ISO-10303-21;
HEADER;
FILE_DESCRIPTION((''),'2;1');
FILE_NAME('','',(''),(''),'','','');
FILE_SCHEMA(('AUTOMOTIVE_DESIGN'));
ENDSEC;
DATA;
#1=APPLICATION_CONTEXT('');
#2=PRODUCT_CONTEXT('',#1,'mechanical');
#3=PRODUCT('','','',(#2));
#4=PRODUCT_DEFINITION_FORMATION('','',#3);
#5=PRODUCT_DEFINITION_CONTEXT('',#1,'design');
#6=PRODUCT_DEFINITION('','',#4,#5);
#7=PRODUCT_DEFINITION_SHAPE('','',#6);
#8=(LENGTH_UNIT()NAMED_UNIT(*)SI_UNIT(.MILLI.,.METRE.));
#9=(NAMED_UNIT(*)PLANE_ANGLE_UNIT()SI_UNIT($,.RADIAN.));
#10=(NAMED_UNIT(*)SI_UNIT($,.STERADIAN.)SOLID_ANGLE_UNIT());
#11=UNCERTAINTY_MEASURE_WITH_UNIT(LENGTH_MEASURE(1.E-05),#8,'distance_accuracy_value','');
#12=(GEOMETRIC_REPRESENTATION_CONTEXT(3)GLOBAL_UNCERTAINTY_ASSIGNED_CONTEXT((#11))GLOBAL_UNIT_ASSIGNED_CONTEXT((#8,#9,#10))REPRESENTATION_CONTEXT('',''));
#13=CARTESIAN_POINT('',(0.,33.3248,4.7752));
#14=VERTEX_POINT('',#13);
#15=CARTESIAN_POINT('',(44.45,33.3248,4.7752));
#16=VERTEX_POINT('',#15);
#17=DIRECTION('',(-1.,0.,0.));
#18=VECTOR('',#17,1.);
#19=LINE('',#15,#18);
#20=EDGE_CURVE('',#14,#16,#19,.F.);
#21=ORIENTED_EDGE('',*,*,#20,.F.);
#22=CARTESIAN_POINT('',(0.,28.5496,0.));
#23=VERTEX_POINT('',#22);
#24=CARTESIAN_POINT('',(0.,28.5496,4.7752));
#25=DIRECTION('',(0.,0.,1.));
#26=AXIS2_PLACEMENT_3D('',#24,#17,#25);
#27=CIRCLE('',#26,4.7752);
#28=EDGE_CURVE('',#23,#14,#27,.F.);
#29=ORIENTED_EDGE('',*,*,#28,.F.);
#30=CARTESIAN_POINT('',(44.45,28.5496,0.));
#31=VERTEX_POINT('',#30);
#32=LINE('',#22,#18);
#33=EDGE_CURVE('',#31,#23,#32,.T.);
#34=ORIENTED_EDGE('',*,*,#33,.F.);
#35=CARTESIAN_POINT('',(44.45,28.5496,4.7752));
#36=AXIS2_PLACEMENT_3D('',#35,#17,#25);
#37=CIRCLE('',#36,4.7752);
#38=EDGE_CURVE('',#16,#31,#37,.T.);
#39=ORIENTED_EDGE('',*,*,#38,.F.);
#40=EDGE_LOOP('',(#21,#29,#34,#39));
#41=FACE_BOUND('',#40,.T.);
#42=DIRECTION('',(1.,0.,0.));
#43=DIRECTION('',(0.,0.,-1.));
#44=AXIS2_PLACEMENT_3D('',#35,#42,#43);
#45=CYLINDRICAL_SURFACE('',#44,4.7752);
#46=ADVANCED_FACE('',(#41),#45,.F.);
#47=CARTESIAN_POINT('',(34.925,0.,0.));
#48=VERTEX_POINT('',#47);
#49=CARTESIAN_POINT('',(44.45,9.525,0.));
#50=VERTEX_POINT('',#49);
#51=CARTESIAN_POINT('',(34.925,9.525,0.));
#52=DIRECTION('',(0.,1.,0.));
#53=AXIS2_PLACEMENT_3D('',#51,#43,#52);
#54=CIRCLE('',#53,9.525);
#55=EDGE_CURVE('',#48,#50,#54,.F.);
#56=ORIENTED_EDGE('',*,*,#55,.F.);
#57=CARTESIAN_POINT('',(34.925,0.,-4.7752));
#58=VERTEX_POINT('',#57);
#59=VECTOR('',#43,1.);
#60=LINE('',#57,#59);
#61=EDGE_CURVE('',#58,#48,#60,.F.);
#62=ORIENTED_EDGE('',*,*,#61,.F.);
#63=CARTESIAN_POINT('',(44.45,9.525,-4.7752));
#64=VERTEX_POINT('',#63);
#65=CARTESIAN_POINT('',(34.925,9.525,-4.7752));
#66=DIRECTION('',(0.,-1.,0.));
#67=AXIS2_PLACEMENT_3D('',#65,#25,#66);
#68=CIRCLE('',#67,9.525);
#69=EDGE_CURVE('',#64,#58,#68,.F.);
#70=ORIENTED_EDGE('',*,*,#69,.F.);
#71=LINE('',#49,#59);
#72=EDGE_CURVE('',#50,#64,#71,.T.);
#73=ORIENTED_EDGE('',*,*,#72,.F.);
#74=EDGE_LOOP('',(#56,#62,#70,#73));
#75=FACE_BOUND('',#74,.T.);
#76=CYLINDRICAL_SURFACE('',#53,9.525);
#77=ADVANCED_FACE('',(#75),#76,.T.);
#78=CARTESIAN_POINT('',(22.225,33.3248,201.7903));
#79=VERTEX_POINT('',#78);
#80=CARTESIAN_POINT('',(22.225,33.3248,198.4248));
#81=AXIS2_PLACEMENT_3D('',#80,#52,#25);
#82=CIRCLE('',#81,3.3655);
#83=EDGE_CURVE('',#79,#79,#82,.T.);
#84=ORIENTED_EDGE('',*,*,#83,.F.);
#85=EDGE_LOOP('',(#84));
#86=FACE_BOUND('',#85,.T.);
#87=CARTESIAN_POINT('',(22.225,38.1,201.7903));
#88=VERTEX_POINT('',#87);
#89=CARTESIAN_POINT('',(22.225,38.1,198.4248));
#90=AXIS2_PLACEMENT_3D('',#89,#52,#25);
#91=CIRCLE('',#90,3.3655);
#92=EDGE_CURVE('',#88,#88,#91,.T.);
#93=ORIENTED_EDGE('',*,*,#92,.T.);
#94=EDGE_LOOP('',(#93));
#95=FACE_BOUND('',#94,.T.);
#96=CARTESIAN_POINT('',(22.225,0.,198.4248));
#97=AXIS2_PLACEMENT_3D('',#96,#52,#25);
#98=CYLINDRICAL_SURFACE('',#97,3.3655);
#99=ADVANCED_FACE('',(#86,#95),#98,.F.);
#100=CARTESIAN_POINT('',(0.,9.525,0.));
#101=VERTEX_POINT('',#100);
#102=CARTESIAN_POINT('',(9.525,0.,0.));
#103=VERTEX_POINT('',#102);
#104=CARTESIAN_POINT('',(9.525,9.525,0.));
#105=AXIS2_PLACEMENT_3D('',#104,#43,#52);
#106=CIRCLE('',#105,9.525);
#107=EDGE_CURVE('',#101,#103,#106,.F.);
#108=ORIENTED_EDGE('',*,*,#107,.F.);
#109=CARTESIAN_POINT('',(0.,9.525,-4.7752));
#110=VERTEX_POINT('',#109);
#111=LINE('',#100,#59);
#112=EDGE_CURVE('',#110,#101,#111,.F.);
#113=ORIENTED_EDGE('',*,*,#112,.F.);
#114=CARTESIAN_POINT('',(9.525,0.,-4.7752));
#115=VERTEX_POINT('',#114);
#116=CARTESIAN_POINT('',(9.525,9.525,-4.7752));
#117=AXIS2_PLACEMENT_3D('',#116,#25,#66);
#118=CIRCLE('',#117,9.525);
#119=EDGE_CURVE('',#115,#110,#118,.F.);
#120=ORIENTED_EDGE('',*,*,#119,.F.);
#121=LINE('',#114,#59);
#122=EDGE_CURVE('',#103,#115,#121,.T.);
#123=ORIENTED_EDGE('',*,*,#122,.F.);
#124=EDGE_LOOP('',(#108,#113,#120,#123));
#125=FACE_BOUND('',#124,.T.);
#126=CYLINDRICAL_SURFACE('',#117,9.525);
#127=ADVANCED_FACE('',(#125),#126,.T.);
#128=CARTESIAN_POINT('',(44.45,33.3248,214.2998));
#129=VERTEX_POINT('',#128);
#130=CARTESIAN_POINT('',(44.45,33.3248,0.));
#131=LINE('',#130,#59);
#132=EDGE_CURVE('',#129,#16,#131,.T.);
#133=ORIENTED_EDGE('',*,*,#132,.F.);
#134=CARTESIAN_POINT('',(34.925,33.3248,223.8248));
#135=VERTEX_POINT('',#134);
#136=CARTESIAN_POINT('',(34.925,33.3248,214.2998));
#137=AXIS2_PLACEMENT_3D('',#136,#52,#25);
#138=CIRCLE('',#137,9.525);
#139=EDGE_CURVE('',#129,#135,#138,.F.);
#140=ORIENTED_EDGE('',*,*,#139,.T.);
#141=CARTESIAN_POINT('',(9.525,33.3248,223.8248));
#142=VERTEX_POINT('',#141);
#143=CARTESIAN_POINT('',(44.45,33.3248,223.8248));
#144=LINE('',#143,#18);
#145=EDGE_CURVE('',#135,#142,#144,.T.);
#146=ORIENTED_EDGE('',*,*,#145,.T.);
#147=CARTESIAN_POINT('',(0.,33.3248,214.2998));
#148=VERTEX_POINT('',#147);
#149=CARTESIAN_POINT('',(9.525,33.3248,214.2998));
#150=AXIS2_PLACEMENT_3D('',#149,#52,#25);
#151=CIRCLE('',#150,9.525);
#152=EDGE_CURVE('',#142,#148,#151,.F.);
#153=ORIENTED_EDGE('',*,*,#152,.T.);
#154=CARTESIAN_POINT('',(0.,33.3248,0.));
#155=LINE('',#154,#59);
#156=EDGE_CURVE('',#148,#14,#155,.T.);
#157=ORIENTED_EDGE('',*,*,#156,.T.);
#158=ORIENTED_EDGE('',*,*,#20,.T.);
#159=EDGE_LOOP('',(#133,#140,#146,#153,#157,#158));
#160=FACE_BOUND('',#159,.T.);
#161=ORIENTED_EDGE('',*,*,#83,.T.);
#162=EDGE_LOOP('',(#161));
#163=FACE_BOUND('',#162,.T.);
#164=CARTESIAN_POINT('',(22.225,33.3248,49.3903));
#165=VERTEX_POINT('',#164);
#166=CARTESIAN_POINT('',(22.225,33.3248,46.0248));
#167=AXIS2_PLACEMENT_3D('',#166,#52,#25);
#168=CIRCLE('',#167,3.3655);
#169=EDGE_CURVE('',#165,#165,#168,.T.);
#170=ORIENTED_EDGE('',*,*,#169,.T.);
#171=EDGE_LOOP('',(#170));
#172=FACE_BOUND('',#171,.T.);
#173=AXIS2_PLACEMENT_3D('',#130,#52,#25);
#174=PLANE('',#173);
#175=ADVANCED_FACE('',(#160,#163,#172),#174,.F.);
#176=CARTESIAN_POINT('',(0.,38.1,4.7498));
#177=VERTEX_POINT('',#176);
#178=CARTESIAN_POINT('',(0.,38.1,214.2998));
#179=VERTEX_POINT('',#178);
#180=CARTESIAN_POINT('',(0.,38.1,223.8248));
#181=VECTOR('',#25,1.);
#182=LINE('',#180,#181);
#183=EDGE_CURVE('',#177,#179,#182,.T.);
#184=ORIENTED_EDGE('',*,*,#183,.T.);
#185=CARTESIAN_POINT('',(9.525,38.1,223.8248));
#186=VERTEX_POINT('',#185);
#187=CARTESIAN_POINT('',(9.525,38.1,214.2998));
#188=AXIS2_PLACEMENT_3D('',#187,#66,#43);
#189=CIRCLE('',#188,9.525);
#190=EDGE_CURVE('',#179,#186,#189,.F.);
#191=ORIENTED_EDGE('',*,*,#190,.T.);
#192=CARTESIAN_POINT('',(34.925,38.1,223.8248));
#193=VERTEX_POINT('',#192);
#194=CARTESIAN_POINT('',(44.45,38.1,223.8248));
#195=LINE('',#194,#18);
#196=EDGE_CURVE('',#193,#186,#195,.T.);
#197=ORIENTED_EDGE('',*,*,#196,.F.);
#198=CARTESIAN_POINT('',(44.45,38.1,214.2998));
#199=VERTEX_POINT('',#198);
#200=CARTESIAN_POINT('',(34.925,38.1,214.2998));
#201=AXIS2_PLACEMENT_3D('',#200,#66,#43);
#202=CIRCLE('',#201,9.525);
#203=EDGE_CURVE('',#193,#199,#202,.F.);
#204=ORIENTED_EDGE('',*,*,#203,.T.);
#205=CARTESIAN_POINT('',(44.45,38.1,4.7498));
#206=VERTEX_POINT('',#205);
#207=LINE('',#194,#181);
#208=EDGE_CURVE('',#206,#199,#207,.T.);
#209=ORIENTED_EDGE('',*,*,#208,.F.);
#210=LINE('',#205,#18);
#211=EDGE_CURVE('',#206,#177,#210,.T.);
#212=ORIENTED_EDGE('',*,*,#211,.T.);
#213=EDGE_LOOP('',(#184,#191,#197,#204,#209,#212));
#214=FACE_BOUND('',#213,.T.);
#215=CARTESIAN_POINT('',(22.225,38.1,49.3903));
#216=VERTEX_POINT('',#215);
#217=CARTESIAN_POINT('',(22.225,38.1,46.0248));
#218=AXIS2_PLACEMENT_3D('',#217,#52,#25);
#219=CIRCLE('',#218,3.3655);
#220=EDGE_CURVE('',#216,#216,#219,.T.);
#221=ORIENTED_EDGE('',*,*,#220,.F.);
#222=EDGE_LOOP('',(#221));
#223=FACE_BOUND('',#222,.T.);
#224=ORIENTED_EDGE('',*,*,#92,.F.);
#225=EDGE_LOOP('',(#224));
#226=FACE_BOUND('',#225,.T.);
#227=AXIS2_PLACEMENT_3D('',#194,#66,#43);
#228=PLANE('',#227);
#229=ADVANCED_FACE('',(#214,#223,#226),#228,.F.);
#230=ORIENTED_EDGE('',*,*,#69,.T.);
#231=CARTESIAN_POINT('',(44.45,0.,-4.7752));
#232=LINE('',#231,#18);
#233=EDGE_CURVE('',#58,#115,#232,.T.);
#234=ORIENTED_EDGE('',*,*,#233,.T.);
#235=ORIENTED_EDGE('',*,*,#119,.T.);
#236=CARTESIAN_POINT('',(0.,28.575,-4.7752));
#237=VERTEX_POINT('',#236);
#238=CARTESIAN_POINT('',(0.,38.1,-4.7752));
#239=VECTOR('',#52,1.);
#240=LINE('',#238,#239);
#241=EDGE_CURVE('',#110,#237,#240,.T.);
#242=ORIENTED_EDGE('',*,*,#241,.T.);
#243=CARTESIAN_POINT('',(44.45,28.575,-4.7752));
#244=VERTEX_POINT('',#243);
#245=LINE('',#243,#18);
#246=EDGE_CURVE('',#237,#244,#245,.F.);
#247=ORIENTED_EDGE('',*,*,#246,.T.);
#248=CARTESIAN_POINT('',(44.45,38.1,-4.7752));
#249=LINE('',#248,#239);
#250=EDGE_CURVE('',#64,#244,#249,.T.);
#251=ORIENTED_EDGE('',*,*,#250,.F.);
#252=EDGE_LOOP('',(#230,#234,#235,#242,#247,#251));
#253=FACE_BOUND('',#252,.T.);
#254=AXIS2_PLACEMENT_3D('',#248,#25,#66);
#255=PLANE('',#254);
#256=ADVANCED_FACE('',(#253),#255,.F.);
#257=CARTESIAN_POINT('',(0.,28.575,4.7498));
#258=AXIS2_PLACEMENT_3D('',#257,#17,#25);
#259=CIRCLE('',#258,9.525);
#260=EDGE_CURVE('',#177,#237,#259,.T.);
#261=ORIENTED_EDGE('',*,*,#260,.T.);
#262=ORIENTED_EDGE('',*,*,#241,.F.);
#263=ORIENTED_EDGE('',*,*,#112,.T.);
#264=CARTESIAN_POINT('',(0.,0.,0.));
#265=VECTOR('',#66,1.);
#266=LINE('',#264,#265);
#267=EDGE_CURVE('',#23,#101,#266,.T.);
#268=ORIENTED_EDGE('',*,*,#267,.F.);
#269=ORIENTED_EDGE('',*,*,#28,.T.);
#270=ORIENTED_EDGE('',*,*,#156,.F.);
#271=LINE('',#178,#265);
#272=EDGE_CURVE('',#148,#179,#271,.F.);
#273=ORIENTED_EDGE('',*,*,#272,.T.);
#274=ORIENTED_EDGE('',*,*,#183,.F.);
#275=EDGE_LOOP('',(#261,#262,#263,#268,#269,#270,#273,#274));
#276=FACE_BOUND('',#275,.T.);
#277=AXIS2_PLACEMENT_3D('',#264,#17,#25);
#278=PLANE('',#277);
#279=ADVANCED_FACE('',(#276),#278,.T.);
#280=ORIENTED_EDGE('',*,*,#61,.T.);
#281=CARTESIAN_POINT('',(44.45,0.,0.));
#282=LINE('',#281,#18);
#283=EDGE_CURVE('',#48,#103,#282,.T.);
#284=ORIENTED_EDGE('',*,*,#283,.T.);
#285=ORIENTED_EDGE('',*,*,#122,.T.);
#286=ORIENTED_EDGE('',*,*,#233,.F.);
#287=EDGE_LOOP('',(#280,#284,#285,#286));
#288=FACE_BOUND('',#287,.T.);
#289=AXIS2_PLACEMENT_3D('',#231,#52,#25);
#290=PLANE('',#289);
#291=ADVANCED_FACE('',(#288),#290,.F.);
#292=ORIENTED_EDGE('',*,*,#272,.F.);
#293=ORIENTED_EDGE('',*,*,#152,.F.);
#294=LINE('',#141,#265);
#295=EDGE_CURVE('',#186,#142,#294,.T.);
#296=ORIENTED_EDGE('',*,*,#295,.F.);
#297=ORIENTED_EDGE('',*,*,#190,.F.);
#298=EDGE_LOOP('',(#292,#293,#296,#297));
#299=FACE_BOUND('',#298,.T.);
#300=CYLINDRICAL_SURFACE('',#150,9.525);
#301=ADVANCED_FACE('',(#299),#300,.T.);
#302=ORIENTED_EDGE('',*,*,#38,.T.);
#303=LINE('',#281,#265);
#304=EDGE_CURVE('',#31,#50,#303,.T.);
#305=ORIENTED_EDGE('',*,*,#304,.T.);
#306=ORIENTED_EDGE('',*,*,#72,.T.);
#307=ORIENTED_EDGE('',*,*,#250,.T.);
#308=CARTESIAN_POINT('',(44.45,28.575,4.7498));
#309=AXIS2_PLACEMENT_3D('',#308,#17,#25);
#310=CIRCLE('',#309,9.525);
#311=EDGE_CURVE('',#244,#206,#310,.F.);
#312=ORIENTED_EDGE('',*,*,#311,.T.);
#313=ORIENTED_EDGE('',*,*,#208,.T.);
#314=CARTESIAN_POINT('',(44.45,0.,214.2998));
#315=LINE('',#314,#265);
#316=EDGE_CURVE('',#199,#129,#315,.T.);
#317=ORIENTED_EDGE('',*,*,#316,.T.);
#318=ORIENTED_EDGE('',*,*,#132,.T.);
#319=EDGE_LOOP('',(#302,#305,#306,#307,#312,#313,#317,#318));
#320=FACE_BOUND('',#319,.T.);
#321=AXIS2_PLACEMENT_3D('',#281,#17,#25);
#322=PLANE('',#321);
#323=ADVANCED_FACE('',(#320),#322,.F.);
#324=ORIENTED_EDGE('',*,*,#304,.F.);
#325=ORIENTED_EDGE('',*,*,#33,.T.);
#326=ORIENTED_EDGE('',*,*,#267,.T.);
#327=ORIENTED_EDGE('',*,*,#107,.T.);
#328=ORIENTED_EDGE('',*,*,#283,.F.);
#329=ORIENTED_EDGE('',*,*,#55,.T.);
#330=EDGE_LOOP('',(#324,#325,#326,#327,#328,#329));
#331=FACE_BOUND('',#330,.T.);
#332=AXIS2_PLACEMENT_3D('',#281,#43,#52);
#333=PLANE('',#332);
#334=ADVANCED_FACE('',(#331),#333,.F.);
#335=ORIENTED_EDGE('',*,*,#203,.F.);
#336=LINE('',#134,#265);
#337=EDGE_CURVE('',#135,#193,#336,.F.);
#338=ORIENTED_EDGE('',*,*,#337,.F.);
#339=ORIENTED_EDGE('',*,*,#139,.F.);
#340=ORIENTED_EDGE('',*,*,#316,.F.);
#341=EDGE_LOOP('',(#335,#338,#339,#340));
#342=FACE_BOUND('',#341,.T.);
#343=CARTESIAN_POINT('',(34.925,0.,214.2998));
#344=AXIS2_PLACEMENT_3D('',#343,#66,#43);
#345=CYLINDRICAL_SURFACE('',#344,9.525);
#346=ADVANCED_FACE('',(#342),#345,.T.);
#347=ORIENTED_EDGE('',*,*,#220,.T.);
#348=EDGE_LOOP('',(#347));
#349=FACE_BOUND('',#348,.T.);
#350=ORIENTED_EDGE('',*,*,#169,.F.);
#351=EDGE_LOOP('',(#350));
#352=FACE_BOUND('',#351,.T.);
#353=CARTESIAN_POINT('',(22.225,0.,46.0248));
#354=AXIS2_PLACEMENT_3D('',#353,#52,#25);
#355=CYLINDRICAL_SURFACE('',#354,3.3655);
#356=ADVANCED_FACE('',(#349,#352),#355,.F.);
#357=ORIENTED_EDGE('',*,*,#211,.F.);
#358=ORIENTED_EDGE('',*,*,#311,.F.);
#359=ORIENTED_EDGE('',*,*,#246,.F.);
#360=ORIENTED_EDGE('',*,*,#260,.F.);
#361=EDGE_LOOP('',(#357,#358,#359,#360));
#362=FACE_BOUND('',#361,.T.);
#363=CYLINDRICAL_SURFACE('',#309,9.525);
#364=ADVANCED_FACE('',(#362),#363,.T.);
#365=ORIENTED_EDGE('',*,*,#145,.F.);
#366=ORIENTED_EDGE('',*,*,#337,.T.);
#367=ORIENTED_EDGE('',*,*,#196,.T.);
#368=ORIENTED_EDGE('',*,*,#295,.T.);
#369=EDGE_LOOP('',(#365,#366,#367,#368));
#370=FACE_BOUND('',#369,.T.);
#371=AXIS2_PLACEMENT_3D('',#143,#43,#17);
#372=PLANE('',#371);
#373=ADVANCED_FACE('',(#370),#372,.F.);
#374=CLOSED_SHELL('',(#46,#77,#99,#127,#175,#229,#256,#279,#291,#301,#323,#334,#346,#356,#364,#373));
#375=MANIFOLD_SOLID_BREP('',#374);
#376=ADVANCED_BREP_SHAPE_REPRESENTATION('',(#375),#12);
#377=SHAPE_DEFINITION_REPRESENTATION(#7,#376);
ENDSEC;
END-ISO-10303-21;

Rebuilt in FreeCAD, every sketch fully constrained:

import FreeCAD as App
import Part
import Sketcher
Q = App.Units.Quantity


def edges_at(feature, points):
    """Names of the edges that pass closest to the given points."""
    edges = feature.Shape.Edges
    near = lambda p: min(range(len(edges)), key=lambda i: edges[i].distToShape(Part.Vertex(*p))[0])
    return sorted({f"Edge{near(p) + 1}" for p in points})

doc = App.newDocument("Part")
body = doc.addObject("PartDesign::Body", "Body")

sketch1 = body.newObject("Sketcher::SketchObject", "Sketch")
sketch1.AttachmentSupport = (doc.getObject("YZ_Plane"), [""])
sketch1.MapMode = "FlatFace"
sketch1.addGeometry(Part.LineSegment(App.Vector(33.3248, 0, 0), App.Vector(0, 0, 0)), False)
sketch1.addGeometry(Part.LineSegment(App.Vector(0, 0, 0), App.Vector(0, -4.7752, 0)), False)
sketch1.addGeometry(Part.LineSegment(App.Vector(0, -4.7752, 0), App.Vector(38.1, -4.7752, 0)), False)
sketch1.addGeometry(Part.LineSegment(App.Vector(38.1, -4.7752, 0), App.Vector(38.1, 223.8248, 0)), False)
sketch1.addGeometry(Part.LineSegment(App.Vector(38.1, 223.8248, 0), App.Vector(33.3248, 223.8248, 0)), False)
sketch1.addGeometry(Part.LineSegment(App.Vector(33.3248, 223.8248, 0), App.Vector(33.3248, 0, 0)), False)
sketch1.addConstraint(Sketcher.Constraint("Coincident", 0, 2, 1, 1))
sketch1.addConstraint(Sketcher.Constraint("Coincident", 1, 2, 2, 1))
sketch1.addConstraint(Sketcher.Constraint("Coincident", 2, 2, 3, 1))
sketch1.addConstraint(Sketcher.Constraint("Coincident", 3, 2, 4, 1))
sketch1.addConstraint(Sketcher.Constraint("Coincident", 4, 2, 5, 1))
sketch1.addConstraint(Sketcher.Constraint("Coincident", 5, 2, 0, 1))
sketch1.addConstraint(Sketcher.Constraint("Horizontal", 0))
sketch1.addConstraint(Sketcher.Constraint("Vertical", 1))
sketch1.addConstraint(Sketcher.Constraint("Horizontal", 2))
sketch1.addConstraint(Sketcher.Constraint("Vertical", 3))
sketch1.addConstraint(Sketcher.Constraint("Horizontal", 4))
sketch1.addConstraint(Sketcher.Constraint("Vertical", 5))
sketch1.addConstraint(Sketcher.Constraint("Coincident", 0, 2, -1, 1))
sketch1.addConstraint(Sketcher.Constraint("Equal", 4, 1))
sketch1.addConstraint(Sketcher.Constraint("DistanceY", 3, 1, 3, 2, Q("9 in")))
sketch1.addConstraint(Sketcher.Constraint("DistanceX", 2, 1, 2, 2, Q("1.5 in")))
sketch1.addConstraint(Sketcher.Constraint("DistanceX", 0, 2, 0, 1, Q("1.312 in")))
pad1 = body.newObject("PartDesign::Pad", "Pad")
pad1.Profile = sketch1
pad1.Length = Q("1.75 in")
doc.recompute()

fillet = body.newObject("PartDesign::Fillet", "Fillet")
fillet.Base = (pad1, edges_at(pad1, [(22.225, 33.325, 0)]))
fillet.Radius = Q("0.188 in")
doc.recompute()

fillet2 = body.newObject("PartDesign::Fillet", "Fillet001")
fillet2.Base = (fillet, edges_at(fillet, [(22.225, 38.1, -4.775)]))
fillet2.Radius = Q("0.375 in")
doc.recompute()

fillet3 = body.newObject("PartDesign::Fillet", "Fillet002")
fillet3.Base = (fillet2, edges_at(fillet2, [
    (44.45, 35.712, 223.825),
    (44.45, 0, -2.388),
    (0, 35.712, 223.825),
    (0, 0, -2.388),
]))
fillet3.Radius = Q("0.375 in")

sketch2 = body.newObject("Sketcher::SketchObject", "Sketch001")
sketch2.AttachmentSupport = (doc.getObject("XZ_Plane"), [""])
sketch2.MapMode = "FlatFace"
sketch2.AttachmentOffset = App.Placement(App.Vector(0, 0, -1.5 * 25.4), App.Rotation())
sketch2.addGeometry(Part.Circle(App.Vector(22.225, 198.4248, 0), App.Vector(0, 0, 1), 3.3655), False)
sketch2.addGeometry(Part.Circle(App.Vector(22.225, 46.0248, 0), App.Vector(0, 0, 1), 3.3655), False)
sketch2.addConstraint(Sketcher.Constraint("Equal", 0, 1))
sketch2.addConstraint(Sketcher.Constraint("Vertical", 0, 3, 1, 3))
sketch2.addConstraint(Sketcher.Constraint("Diameter", 0, Q("0.265 in")))
sketch2.addConstraint(Sketcher.Constraint("DistanceY", 1, 3, 0, 3, Q("6 in")))
sketch2.addConstraint(Sketcher.Constraint("DistanceX", -1, 1, 0, 3, Q("0.875 in")))
sketch2.addConstraint(Sketcher.Constraint("DistanceY", -1, 1, 0, 3, Q("7.812 in")))
pocket1 = body.newObject("PartDesign::Pocket", "Pocket")
pocket1.Profile = sketch2
pocket1.Type = "ThroughAll"
pocket1.Reversed = True

doc.recompute()
